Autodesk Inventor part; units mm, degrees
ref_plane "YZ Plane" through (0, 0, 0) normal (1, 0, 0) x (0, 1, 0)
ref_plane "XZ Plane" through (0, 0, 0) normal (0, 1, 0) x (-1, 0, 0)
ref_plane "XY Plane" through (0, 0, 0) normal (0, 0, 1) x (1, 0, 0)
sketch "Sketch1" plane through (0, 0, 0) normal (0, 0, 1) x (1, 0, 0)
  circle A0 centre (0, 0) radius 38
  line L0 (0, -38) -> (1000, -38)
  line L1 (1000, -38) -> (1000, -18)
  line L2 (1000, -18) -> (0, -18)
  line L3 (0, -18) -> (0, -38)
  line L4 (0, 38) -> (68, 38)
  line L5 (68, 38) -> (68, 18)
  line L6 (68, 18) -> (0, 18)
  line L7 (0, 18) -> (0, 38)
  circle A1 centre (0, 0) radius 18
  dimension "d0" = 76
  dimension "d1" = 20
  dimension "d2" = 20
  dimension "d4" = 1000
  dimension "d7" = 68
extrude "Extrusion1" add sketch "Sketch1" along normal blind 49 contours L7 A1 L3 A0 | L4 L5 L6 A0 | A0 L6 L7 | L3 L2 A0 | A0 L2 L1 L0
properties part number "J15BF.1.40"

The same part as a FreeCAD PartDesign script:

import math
import FreeCAD as App
import Part
import Sketcher
Q = App.Units.Quantity

doc = App.newDocument("Part")
params = doc.addObject("Spreadsheet::Sheet", "Params")
for row, (alias, value) in enumerate([
    ("sketch1_radius", "38 mm"),
    ("sketch1_width", "68 mm"),
    ("sketch1_width2", "1000 mm"),
    ("sketch1_height", "20 mm"),
    ("pad1_length", "49 mm"),
], start=1):
    params.set(f"A{row}", alias)
    params.set(f"B{row}", "=" + value)
    params.setAlias(f"B{row}", alias)

body = doc.addObject("PartDesign::Body", "Body")

# Sketch on XY plane
sketch1 = body.newObject("Sketcher::SketchObject", "Sketch")
sketch1.AttachmentSupport = (doc.getObject("XY_Plane"), [""])
sketch1.MapMode = "FlatFace"
sketch1.addGeometry(Part.ArcOfCircle(Part.Circle(App.Vector(0, 0, 0), App.Vector(0, 0, 1), 18), math.radians(90), math.radians(270)), False)
sketch1.addGeometry(Part.LineSegment(App.Vector(0, 18, 0), App.Vector(68, 18, 0)), False)
sketch1.addGeometry(Part.LineSegment(App.Vector(68, 18, 0), App.Vector(68, 38, 0)), False)
sketch1.addGeometry(Part.LineSegment(App.Vector(68, 38, 0), App.Vector(0, 38, 0)), False)
sketch1.addGeometry(Part.ArcOfCircle(Part.Circle(App.Vector(0, 0, 0), App.Vector(0, 0, 1), 38), math.radians(90), math.radians(270)), False)
sketch1.addGeometry(Part.LineSegment(App.Vector(0, -38, 0), App.Vector(1000, -38, 0)), False)
sketch1.addGeometry(Part.LineSegment(App.Vector(1000, -38, 0), App.Vector(1000, -18, 0)), False)
sketch1.addGeometry(Part.LineSegment(App.Vector(1000, -18, 0), App.Vector(0, -18, 0)), False)
sketch1.addConstraint(Sketcher.Constraint("Tangent", 0, 1, 1, 1))
sketch1.addConstraint(Sketcher.Constraint("Coincident", 1, 2, 2, 1))
sketch1.addConstraint(Sketcher.Constraint("Coincident", 2, 2, 3, 1))
sketch1.addConstraint(Sketcher.Constraint("Tangent", 3, 2, 4, 1))
sketch1.addConstraint(Sketcher.Constraint("Tangent", 4, 2, 5, 1))
sketch1.addConstraint(Sketcher.Constraint("Coincident", 5, 2, 6, 1))
sketch1.addConstraint(Sketcher.Constraint("Coincident", 6, 2, 7, 1))
sketch1.addConstraint(Sketcher.Constraint("Tangent", 7, 2, 0, 2))
sketch1.addConstraint(Sketcher.Constraint("Horizontal", 1))
sketch1.addConstraint(Sketcher.Constraint("Vertical", 2))
sketch1.addConstraint(Sketcher.Constraint("Horizontal", 3))
sketch1.addConstraint(Sketcher.Constraint("Horizontal", 5))
sketch1.addConstraint(Sketcher.Constraint("Vertical", 6))
sketch1.addConstraint(Sketcher.Constraint("Horizontal", 7))
sketch1.addConstraint(Sketcher.Constraint("Coincident", 0, 3, -1, 1))
sketch1.addConstraint(Sketcher.Constraint("Coincident", 4, 3, -1, 1))
sketch1.addConstraint(Sketcher.Constraint("Radius", 4, Q("38 mm")))
sketch1.addConstraint(Sketcher.Constraint("DistanceX", 1, 1, 1, 2, Q("68 mm")))
sketch1.addConstraint(Sketcher.Constraint("DistanceX", 5, 1, 5, 2, Q("1000 mm")))
sketch1.addConstraint(Sketcher.Constraint("DistanceY", 2, 1, 2, 2, Q("20 mm")))
sketch1.setExpression("Constraints[16]", "Params.sketch1_radius")
sketch1.setExpression("Constraints[17]", "Params.sketch1_width")
sketch1.setExpression("Constraints[18]", "Params.sketch1_width2")
sketch1.setExpression("Constraints[19]", "Params.sketch1_height")
pad1 = body.newObject("PartDesign::Pad", "Pad")
pad1.Profile = sketch1
pad1.setExpression("Length", "Params.pad1_length")

doc.recompute()
